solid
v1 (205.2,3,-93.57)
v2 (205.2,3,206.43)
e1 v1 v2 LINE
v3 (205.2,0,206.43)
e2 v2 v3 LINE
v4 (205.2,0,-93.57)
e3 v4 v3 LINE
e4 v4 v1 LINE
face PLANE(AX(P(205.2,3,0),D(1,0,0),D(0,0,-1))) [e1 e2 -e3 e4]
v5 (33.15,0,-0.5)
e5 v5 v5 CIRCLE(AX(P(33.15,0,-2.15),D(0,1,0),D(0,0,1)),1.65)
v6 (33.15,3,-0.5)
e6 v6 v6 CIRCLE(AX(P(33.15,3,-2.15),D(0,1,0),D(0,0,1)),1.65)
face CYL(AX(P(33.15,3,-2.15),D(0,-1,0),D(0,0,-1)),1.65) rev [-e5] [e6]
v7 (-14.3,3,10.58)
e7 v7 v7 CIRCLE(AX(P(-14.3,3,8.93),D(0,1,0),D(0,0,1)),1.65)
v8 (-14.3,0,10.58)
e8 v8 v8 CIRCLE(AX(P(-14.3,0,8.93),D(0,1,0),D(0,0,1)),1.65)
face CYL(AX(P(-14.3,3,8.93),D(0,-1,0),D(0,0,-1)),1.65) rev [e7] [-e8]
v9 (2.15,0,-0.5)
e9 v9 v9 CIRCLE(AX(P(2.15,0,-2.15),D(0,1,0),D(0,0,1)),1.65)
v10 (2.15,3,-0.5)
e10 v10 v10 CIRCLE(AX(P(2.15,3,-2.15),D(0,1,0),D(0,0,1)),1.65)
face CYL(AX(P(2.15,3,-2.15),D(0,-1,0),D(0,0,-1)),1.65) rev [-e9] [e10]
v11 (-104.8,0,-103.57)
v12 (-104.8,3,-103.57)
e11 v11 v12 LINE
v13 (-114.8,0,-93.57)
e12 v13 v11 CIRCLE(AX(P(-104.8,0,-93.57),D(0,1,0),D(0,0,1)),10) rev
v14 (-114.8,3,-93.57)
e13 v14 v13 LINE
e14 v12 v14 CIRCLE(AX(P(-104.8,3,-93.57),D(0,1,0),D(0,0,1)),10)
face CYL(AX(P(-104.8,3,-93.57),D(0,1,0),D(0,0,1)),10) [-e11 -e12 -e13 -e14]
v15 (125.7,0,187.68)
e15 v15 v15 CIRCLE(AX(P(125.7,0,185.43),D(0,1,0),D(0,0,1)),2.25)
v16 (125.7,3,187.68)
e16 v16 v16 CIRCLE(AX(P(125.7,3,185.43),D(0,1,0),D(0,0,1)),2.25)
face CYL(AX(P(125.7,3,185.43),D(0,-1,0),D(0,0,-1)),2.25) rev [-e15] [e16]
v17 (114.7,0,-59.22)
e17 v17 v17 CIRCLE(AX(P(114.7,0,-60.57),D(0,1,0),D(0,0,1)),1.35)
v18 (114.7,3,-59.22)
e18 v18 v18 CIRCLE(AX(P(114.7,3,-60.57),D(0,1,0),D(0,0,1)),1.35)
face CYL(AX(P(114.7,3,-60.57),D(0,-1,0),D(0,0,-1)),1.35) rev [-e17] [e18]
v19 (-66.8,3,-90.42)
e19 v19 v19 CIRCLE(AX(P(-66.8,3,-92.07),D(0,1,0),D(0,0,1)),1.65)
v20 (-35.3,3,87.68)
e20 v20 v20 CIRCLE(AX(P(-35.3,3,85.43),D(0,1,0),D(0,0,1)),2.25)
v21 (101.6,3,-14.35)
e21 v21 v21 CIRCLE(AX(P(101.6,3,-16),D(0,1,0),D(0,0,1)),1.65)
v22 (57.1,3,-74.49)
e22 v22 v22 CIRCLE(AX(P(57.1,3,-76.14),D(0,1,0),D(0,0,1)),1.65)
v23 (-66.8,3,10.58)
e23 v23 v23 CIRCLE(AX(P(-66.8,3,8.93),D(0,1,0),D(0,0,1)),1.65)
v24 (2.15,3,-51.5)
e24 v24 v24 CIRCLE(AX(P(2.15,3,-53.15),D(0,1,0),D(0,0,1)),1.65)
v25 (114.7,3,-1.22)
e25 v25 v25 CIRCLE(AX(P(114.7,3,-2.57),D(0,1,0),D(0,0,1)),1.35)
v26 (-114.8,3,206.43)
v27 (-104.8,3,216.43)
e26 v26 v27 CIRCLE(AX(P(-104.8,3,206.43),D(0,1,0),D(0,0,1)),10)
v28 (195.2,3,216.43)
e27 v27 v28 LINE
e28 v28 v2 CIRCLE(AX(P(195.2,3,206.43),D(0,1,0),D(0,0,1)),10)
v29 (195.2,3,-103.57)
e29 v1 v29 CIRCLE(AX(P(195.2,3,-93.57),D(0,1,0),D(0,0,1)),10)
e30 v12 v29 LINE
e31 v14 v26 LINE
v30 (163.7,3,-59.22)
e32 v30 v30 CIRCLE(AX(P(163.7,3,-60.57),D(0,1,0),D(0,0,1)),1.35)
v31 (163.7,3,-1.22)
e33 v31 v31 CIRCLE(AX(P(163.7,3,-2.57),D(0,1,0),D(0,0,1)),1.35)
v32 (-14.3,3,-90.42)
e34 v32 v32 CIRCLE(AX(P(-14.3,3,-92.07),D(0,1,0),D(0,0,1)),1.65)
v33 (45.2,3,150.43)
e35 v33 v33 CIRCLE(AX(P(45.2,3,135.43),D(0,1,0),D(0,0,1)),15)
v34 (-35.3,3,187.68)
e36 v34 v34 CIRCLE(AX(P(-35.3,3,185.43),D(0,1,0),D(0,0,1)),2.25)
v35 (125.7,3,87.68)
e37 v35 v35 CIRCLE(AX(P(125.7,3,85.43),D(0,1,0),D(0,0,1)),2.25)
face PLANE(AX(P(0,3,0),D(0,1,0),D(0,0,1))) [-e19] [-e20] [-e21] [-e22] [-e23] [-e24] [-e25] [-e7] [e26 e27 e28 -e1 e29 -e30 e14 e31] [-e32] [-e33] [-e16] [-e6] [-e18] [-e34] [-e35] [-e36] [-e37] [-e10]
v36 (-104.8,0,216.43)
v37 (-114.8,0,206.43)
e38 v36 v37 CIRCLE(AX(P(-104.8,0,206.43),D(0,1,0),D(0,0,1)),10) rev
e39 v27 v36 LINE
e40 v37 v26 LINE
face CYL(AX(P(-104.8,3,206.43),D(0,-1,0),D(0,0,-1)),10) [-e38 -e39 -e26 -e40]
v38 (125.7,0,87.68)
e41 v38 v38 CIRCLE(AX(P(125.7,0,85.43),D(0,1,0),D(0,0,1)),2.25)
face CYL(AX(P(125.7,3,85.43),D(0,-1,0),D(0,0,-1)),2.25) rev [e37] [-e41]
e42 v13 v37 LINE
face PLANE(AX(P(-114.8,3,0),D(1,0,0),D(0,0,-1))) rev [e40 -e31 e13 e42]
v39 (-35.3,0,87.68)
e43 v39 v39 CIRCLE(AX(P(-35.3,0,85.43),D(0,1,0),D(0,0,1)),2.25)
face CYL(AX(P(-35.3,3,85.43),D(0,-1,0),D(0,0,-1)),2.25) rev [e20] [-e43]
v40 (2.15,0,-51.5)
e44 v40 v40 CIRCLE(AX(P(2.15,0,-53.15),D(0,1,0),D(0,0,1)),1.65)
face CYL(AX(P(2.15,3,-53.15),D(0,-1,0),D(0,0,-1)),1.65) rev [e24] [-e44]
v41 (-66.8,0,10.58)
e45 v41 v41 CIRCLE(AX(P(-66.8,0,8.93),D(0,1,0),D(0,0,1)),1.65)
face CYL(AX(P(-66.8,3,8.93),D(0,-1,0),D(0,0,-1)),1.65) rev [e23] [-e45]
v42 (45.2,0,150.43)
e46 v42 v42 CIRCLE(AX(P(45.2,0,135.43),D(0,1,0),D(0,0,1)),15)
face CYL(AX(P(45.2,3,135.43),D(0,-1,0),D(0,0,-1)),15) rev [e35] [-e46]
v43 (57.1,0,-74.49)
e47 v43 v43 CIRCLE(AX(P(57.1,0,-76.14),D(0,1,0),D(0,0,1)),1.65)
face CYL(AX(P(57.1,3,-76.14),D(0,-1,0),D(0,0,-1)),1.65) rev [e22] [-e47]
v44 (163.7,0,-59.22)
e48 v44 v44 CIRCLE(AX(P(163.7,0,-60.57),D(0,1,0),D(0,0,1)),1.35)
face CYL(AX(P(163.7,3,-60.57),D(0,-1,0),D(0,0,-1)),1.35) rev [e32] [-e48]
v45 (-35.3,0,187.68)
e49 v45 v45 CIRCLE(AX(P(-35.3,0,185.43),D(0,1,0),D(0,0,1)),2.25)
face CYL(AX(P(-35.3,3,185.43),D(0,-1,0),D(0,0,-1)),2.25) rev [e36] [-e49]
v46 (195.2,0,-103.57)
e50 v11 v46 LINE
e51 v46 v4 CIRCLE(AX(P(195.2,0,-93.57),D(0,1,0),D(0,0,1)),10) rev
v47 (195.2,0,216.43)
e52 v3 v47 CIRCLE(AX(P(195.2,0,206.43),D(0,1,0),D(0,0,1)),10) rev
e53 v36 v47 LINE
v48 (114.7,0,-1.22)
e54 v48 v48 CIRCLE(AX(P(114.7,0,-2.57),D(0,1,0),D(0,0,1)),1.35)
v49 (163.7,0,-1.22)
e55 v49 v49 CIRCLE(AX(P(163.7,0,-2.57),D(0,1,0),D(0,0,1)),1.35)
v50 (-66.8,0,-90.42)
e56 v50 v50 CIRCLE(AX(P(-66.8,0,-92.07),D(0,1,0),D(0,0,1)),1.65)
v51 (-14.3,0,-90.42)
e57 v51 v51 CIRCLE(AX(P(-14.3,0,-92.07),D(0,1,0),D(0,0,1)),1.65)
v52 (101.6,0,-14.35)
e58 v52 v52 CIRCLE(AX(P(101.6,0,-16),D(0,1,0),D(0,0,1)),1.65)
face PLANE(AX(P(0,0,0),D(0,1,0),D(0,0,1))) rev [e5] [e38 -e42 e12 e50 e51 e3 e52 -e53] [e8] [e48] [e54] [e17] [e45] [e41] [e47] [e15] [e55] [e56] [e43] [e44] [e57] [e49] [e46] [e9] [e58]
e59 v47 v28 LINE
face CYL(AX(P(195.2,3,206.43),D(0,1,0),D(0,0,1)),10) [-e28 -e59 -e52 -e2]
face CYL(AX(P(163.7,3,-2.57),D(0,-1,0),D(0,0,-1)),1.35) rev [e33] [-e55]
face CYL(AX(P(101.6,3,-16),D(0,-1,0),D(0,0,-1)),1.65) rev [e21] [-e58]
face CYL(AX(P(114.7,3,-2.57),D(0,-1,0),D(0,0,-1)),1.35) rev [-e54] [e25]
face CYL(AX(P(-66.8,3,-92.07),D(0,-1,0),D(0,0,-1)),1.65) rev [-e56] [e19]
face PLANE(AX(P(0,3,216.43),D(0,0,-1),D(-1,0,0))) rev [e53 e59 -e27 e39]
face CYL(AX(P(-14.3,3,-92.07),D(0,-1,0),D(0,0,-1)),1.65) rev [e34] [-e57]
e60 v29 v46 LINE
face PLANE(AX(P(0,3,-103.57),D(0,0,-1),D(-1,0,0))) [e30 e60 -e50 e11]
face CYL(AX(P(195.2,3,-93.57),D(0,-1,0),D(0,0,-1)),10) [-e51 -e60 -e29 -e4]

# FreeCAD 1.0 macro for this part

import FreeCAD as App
import Part
import Sketcher
from FreeCAD import Vector


def edges_at(feature, points):
    """Names of the edges that pass closest to the given points."""
    edges = feature.Shape.Edges
    near = lambda p: min(range(len(edges)), key=lambda i: edges[i].distToShape(Part.Vertex(*p))[0])
    return sorted({f"Edge{near(p) + 1}" for p in points})


def add_polygon(sketch, points):
    """Adds a closed chain of lines whose ends are joined by coincident constraints."""
    first, n = sketch.GeometryCount, len(points)
    for a, b in zip(points, points[1:] + points[:1]):
        sketch.addGeometry(Part.LineSegment(App.Vector(*a, 0), App.Vector(*b, 0)), False)
    for i in range(n):
        sketch.addConstraint(Sketcher.Constraint("Coincident", first + i, 2, first + (i + 1) % n, 1))

doc = App.newDocument("Part")
body = doc.addObject("PartDesign::Body", "Body")

sketch1 = body.newObject("Sketcher::SketchObject", "Sketch")
sketch1.AttachmentSupport = (doc.getObject("XZ_Plane"), [""])
sketch1.MapMode = "FlatFace"
add_polygon(sketch1, [(-114.8, -103.6), (-114.8, 216.4), (205.2, 216.4), (205.2, -103.6)])
sketch1.addGeometry(Part.Circle(Vector(-35.3, 185.4, 0), Vector(0, 0, 1), 2.2), False)
sketch1.addGeometry(Part.Circle(Vector(45.2, 135.4, 0), Vector(0, 0, 1), 15), False)
sketch1.addGeometry(Part.Circle(Vector(-35.3, 85.4, 0), Vector(0, 0, 1), 2.2), False)
sketch1.addGeometry(Part.Circle(Vector(125.7, 185.4, 0), Vector(0, 0, 1), 2.2), False)
sketch1.addGeometry(Part.Circle(Vector(125.7, 85.4, 0), Vector(0, 0, 1), 2.2), False)
sketch1.addGeometry(Part.Circle(Vector(-66.8, 8.9, 0), Vector(0, 0, 1), 1.6), False)
sketch1.addGeometry(Part.Circle(Vector(-14.3, 8.9, 0), Vector(0, 0, 1), 1.6), False)
sketch1.addGeometry(Part.Circle(Vector(2.1, -2.1, 0), Vector(0, 0, 1), 1.6), False)
sketch1.addGeometry(Part.Circle(Vector(33.1, -2.1, 0), Vector(0, 0, 1), 1.6), False)
sketch1.addGeometry(Part.Circle(Vector(-66.8, -92.1, 0), Vector(0, 0, 1), 1.6), False)
sketch1.addGeometry(Part.Circle(Vector(-14.3, -92.1, 0), Vector(0, 0, 1), 1.6), False)
sketch1.addGeometry(Part.Circle(Vector(2.1, -53.1, 0), Vector(0, 0, 1), 1.6), False)
sketch1.addGeometry(Part.Circle(Vector(101.6, -16, 0), Vector(0, 0, 1), 1.6), False)
sketch1.addGeometry(Part.Circle(Vector(114.7, -2.6, 0), Vector(0, 0, 1), 1.4), False)
sketch1.addGeometry(Part.Circle(Vector(163.7, -2.6, 0), Vector(0, 0, 1), 1.4), False)
sketch1.addGeometry(Part.Circle(Vector(57.1, -76.1, 0), Vector(0, 0, 1), 1.6), False)
sketch1.addGeometry(Part.Circle(Vector(114.7, -60.6, 0), Vector(0, 0, 1), 1.4), False)
sketch1.addGeometry(Part.Circle(Vector(163.7, -60.6, 0), Vector(0, 0, 1), 1.4), False)
sketch1.addConstraint([
    Sketcher.Constraint("Vertical", 0),
    Sketcher.Constraint("Horizontal", 1),
    Sketcher.Constraint("Vertical", 2),
    Sketcher.Constraint("Horizontal", 3),
    Sketcher.Constraint("Equal", 4, 6),
    Sketcher.Constraint("Equal", 6, 7),
    Sketcher.Constraint("Equal", 7, 8),
    Sketcher.Constraint("Equal", 9, 10),
    Sketcher.Constraint("Equal", 10, 11),
    Sketcher.Constraint("Equal", 11, 12),
    Sketcher.Constraint("Equal", 12, 13),
    Sketcher.Constraint("Equal", 13, 14),
    Sketcher.Constraint("Equal", 14, 15),
    Sketcher.Constraint("Equal", 15, 16),
    Sketcher.Constraint("Equal", 17, 18),
    Sketcher.Constraint("Equal", 16, 19),
    Sketcher.Constraint("Equal", 18, 20),
    Sketcher.Constraint("Equal", 20, 21),
    Sketcher.Constraint("Horizontal", 4, 3, 7, 3),
    Sketcher.Constraint("Horizontal", 6, 3, 8, 3),
    Sketcher.Constraint("Horizontal", 9, 3, 10, 3),
    Sketcher.Constraint("Horizontal", 11, 3, 12, 3),
    Sketcher.Constraint("Horizontal", 13, 3, 14, 3),
    Sketcher.Constraint("Horizontal", 17, 3, 18, 3),
    Sketcher.Constraint("Horizontal", 20, 3, 21, 3),
    Sketcher.Constraint("Vertical", 4, 3, 6, 3),
    Sketcher.Constraint("Vertical", 7, 3, 8, 3),
    Sketcher.Constraint("Vertical", 9, 3, 13, 3),
    Sketcher.Constraint("Vertical", 10, 3, 14, 3),
    Sketcher.Constraint("Vertical", 11, 3, 15, 3),
    Sketcher.Constraint("Vertical", 17, 3, 20, 3),
    Sketcher.Constraint("Vertical", 18, 3, 21, 3),
    Sketcher.Constraint("Equal", 3, 0),
    Sketcher.Constraint("Diameter", 5, 30.0),
    Sketcher.Constraint("Diameter", 4, 4.5),
    Sketcher.Constraint("Diameter", 9, 3.3),
    Sketcher.Constraint("Diameter", 17, 2.7),
    Sketcher.Constraint("DistanceX", 1, 1, 1, 2, 320.0),
    Sketcher.Constraint("DistanceY", 16, 3, -1, 1, 16.0),
    Sketcher.Constraint("DistanceY", 5, 3, 4, 3, 50.0),
    Sketcher.Constraint("DistanceY", 6, 3, 5, 3, 50.0),
    Sketcher.Constraint("DistanceX", 4, 3, 7, 3, 161.0),
    Sketcher.Constraint("DistanceX", 9, 3, 5, 3, 112.0),
    Sketcher.Constraint("DistanceX", 6, 3, 10, 3, 21.0),
    Sketcher.Constraint("DistanceX", 11, 3, 12, 3, 31.0),
    Sketcher.Constraint("DistanceY", 13, 3, 9, 3, 101.0),
    Sketcher.Constraint("DistanceY", 15, 3, 11, 3, 51.0),
    Sketcher.Constraint("DistanceX", 17, 3, 8, 3, 11.0),
    Sketcher.Constraint("DistanceY", 17, 3, 8, 3, 88.0),
    Sketcher.Constraint("DistanceX", 17, 3, 18, 3, 49.0),
    Sketcher.Constraint("DistanceY", 20, 3, 17, 3, 58.0),
    Sketcher.Constraint("DistanceY", 4, 3, 0, 2, 31.0),
    Sketcher.Constraint("DistanceX", 0, 2, 5, 3, 160.0),
    Sketcher.Constraint("DistanceX", 4, 3, -1, 1, 35.3),
    Sketcher.Constraint("DistanceX", -1, 1, 5, 3, 45.2),
    Sketcher.Constraint("DistanceX", -1, 1, 16, 3, 101.6),
    Sketcher.Constraint("DistanceX", -1, 1, 19, 3, 57.1),
    Sketcher.Constraint("DistanceY", 9, 3, 6, 3, 76.5),
    Sketcher.Constraint("DistanceY", -1, 1, 4, 3, 185.43),
    Sketcher.Constraint("DistanceX", -1, 1, 11, 3, 2.15),
    Sketcher.Constraint("DistanceY", 11, 3, -1, 1, 2.15),
    Sketcher.Constraint("DistanceY", 19, 3, -1, 1, 76.14),
])
pad1 = body.newObject("PartDesign::Pad", "Pad")
pad1.Profile = sketch1
pad1.Length = 3
pad1.Reversed = True
doc.recompute()

fillet = body.newObject("PartDesign::Fillet", "Fillet")
fillet.Base = (pad1, edges_at(pad1, [
    (205.2, 1.5, 216.43),
    (-114.8, 1.5, 216.43),
    (-114.8, 1.5, -103.57),
    (205.2, 1.5, -103.57),
]))
fillet.Radius = 10

doc.recompute()
